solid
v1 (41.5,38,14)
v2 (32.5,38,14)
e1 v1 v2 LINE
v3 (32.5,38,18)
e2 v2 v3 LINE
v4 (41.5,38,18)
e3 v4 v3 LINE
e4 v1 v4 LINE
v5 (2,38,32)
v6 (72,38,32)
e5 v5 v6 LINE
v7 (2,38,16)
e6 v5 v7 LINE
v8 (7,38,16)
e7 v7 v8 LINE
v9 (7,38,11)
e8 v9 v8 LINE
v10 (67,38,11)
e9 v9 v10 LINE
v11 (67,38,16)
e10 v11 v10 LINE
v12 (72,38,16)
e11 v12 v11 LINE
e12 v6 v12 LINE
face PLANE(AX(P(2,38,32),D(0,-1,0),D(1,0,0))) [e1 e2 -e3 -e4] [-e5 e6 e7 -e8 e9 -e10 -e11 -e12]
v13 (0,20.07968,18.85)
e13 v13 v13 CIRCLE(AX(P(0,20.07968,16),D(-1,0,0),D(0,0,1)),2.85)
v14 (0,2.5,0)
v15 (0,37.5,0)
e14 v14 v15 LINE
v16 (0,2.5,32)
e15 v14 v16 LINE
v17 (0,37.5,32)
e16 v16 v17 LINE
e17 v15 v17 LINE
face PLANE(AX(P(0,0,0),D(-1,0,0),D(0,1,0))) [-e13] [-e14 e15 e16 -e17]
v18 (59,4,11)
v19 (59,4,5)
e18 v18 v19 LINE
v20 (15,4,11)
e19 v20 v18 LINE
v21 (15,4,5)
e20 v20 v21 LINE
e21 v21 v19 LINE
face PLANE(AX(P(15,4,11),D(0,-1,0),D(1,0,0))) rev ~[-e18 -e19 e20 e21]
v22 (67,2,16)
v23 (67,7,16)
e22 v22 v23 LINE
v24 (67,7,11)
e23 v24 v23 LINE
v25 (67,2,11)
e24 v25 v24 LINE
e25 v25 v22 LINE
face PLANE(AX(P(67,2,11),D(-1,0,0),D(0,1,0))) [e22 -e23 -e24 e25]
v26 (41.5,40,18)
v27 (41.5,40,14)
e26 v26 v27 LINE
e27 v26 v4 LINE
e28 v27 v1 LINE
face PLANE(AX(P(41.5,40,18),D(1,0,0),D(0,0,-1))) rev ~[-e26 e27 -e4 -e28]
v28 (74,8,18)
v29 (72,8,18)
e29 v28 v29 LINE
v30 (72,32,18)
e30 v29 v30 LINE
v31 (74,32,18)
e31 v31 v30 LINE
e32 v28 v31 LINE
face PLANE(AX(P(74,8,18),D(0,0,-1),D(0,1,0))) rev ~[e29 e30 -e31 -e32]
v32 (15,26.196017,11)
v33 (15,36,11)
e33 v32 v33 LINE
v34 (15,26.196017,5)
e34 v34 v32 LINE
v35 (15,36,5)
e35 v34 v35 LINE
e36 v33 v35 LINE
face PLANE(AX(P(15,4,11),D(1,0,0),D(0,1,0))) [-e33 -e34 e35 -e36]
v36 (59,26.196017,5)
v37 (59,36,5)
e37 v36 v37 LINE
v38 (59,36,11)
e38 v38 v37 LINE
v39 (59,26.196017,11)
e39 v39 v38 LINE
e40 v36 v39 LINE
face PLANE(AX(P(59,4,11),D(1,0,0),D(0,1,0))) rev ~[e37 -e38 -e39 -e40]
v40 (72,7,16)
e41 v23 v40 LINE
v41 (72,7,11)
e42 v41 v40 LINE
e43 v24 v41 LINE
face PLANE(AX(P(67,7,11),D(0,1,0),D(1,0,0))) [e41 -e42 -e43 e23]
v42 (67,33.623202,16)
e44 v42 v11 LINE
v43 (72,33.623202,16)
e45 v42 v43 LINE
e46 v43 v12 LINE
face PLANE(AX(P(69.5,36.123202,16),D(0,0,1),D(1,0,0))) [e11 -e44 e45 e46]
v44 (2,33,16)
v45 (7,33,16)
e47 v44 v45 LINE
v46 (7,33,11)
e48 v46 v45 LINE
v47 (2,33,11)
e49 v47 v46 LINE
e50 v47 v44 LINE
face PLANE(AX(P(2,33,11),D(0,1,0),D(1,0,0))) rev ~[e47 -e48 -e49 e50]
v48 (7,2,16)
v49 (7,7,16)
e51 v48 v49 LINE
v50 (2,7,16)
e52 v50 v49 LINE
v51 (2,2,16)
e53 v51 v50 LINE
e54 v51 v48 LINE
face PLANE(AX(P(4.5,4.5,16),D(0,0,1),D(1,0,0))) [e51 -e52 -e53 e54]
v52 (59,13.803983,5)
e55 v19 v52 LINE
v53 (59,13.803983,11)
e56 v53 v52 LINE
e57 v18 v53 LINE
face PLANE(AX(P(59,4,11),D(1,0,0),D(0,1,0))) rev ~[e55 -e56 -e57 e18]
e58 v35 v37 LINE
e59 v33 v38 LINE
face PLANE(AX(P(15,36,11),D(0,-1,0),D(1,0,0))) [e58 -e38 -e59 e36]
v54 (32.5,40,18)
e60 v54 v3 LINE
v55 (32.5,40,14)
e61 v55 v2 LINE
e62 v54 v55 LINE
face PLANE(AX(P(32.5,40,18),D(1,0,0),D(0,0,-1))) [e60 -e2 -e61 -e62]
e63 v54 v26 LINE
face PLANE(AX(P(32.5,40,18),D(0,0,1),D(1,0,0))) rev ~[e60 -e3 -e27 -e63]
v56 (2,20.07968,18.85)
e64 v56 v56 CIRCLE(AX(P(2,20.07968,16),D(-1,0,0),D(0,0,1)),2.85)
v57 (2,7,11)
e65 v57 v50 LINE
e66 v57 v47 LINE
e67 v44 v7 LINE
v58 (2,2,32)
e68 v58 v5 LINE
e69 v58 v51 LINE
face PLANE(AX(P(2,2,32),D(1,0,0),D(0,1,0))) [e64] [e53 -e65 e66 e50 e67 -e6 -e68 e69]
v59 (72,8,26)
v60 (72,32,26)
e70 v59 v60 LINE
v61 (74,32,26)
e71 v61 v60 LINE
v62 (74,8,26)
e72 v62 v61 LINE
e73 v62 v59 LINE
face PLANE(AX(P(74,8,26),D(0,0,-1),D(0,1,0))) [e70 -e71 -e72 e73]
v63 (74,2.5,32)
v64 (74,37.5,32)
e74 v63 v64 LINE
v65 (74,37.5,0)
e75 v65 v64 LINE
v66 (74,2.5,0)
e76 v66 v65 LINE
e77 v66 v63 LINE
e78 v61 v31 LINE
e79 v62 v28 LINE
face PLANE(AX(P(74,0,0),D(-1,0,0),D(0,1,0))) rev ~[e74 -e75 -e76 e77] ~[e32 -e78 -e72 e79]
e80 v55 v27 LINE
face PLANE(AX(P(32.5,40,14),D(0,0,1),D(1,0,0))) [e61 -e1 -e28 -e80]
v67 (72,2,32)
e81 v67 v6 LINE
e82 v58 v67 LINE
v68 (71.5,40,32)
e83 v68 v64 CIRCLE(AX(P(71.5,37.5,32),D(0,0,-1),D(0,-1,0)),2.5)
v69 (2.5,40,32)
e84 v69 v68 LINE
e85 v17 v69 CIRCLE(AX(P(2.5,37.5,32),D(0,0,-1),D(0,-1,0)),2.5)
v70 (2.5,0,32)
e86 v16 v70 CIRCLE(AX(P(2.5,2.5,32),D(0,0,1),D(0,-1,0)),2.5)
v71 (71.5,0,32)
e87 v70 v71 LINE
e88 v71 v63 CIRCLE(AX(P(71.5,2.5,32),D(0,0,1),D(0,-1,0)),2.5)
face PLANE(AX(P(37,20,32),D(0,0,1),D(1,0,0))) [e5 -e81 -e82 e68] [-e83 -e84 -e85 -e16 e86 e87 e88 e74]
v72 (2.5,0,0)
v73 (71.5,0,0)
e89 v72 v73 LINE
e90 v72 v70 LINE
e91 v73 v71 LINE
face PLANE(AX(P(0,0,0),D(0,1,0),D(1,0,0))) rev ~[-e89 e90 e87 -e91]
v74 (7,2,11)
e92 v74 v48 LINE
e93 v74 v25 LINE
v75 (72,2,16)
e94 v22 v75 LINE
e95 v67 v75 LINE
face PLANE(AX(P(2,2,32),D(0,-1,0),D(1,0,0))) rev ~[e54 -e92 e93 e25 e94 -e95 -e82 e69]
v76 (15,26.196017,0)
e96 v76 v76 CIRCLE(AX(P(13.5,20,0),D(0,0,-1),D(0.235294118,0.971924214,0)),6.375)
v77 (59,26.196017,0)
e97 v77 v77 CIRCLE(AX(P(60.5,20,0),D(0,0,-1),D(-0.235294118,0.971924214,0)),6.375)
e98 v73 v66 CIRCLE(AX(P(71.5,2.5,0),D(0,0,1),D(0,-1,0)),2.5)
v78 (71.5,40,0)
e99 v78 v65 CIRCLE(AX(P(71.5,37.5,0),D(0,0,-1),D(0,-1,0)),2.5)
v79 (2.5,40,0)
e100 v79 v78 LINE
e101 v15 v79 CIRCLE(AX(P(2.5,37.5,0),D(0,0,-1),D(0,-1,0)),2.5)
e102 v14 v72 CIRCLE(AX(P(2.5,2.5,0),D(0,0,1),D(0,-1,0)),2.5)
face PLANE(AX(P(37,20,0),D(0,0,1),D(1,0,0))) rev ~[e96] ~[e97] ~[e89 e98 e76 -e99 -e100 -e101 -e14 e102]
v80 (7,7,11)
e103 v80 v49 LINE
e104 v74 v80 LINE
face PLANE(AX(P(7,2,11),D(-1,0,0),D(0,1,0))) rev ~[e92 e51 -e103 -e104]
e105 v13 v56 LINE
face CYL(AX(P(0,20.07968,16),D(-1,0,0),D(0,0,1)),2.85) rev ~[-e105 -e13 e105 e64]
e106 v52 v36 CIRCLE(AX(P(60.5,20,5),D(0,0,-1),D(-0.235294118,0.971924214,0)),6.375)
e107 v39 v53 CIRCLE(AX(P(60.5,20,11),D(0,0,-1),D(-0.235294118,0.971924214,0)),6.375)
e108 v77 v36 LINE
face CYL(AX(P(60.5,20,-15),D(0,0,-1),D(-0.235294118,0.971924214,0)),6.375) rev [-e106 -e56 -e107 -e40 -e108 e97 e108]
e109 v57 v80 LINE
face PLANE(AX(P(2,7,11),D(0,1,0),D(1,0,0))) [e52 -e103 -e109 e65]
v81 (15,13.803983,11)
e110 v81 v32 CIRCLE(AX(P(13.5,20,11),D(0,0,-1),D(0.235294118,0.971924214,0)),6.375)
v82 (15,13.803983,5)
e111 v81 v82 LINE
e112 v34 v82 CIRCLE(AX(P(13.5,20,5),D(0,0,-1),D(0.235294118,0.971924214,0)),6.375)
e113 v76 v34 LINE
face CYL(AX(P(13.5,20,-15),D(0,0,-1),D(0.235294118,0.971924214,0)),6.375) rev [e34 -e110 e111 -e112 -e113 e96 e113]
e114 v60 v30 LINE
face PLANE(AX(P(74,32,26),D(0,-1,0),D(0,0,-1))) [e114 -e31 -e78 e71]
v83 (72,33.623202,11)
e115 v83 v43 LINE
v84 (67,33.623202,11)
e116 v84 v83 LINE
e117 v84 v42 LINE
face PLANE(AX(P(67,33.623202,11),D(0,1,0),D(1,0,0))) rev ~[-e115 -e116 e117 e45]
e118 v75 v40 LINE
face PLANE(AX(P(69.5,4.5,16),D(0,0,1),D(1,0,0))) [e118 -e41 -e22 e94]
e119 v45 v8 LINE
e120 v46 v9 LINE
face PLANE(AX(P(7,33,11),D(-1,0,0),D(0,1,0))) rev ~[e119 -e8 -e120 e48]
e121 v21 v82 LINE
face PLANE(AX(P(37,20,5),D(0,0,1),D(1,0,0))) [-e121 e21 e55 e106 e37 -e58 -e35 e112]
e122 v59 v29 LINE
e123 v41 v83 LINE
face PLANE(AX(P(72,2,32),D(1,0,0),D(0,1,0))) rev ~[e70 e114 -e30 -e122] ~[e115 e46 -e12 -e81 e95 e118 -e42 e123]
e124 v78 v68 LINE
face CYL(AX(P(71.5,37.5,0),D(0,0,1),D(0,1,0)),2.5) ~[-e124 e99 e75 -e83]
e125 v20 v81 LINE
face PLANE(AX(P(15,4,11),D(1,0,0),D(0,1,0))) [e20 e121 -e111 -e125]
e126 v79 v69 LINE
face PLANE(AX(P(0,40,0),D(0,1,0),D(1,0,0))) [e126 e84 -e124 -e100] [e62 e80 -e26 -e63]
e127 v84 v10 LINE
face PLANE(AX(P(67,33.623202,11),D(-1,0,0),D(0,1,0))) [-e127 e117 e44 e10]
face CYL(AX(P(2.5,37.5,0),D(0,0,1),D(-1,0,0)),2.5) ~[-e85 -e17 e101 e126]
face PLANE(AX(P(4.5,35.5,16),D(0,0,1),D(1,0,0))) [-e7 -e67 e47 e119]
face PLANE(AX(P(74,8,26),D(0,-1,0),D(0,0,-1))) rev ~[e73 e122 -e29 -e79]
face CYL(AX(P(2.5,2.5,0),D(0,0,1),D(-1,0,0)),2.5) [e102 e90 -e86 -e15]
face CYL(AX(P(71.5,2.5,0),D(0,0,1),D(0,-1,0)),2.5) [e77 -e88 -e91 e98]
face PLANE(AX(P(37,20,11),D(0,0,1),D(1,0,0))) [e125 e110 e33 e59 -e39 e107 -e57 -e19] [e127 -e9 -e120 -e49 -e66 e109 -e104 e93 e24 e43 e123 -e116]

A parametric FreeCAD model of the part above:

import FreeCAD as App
import Part
import Sketcher
from FreeCAD import Vector


def edges_at(feature, points):
    """Names of the edges that pass closest to the given points."""
    edges = feature.Shape.Edges
    near = lambda p: min(range(len(edges)), key=lambda i: edges[i].distToShape(Part.Vertex(*p))[0])
    return sorted({f"Edge{near(p) + 1}" for p in points})


def add_polygon(sketch, points):
    """Adds a closed chain of lines whose ends are joined by coincident constraints."""
    first, n = sketch.GeometryCount, len(points)
    for a, b in zip(points, points[1:] + points[:1]):
        sketch.addGeometry(Part.LineSegment(App.Vector(*a, 0), App.Vector(*b, 0)), False)
    for i in range(n):
        sketch.addConstraint(Sketcher.Constraint("Coincident", first + i, 2, first + (i + 1) % n, 1))

doc = App.newDocument("Part")
body = doc.addObject("PartDesign::Body", "Body")

sketch1 = body.newObject("Sketcher::SketchObject", "Sketch")
sketch1.AttachmentSupport = (doc.getObject("XY_Plane"), [""])
sketch1.MapMode = "FlatFace"
add_polygon(sketch1, [(0, 40), (0, 0), (74, 0), (74, 40)])
sketch1.addConstraint([
    Sketcher.Constraint("Vertical", 0),
    Sketcher.Constraint("Horizontal", 1),
    Sketcher.Constraint("Vertical", 2),
    Sketcher.Constraint("Horizontal", 3),
    Sketcher.Constraint("Coincident", 0, 2, -1, 1),
    Sketcher.Constraint("DistanceX", 1, 1, 1, 2, 74.0),
    Sketcher.Constraint("DistanceY", 0, 2, 0, 1, 40.0),
])
pad1 = body.newObject("PartDesign::Pad", "Pad")
pad1.Profile = sketch1
pad1.Length = 32

sketch2 = body.newObject("Sketcher::SketchObject", "Sketch001")
sketch2.AttachmentSupport = (doc.getObject("XY_Plane"), [""])
sketch2.MapMode = "FlatFace"
sketch2.AttachmentOffset = App.Placement(Vector(0, 0, 32), App.Rotation())
add_polygon(sketch2, [(2, 38), (2, 2), (72, 2), (72, 38)])
sketch2.addConstraint([
    Sketcher.Constraint("Vertical", 0),
    Sketcher.Constraint("Horizontal", 1),
    Sketcher.Constraint("Vertical", 2),
    Sketcher.Constraint("Horizontal", 3),
    Sketcher.Constraint("DistanceX", 1, 1, 1, 2, 70.0),
    Sketcher.Constraint("DistanceY", 0, 2, 0, 1, 36.0),
    Sketcher.Constraint("DistanceX", -1, 1, 0, 2, 2.0),
    Sketcher.Constraint("DistanceY", -1, 1, 0, 2, 2.0),
])
pocket1 = body.newObject("PartDesign::Pocket", "Pocket")
pocket1.Profile = sketch2
pocket1.Length = 21

sketch3 = body.newObject("Sketcher::SketchObject", "Sketch002")
sketch3.AttachmentSupport = (doc.getObject("XY_Plane"), [""])
sketch3.MapMode = "FlatFace"
sketch3.AttachmentOffset = App.Placement(Vector(0, 0, 11), App.Rotation())
add_polygon(sketch3, [(15, 36), (15, 4), (59, 4), (59, 36)])
sketch3.addConstraint([
    Sketcher.Constraint("Vertical", 0),
    Sketcher.Constraint("Horizontal", 1),
    Sketcher.Constraint("Vertical", 2),
    Sketcher.Constraint("Horizontal", 3),
    Sketcher.Constraint("DistanceX", 1, 1, 1, 2, 44.0),
    Sketcher.Constraint("DistanceY", 0, 2, 0, 1, 32.0),
    Sketcher.Constraint("DistanceX", -1, 1, 0, 2, 15.0),
    Sketcher.Constraint("DistanceY", -1, 1, 0, 2, 4.0),
])
pocket2 = body.newObject("PartDesign::Pocket", "Pocket001")
pocket2.Profile = sketch3
pocket2.Length = 6

sketch4 = body.newObject("Sketcher::SketchObject", "Sketch003")
sketch4.AttachmentSupport = (doc.getObject("XY_Plane"), [""])
sketch4.MapMode = "FlatFace"
sketch4.AttachmentOffset = App.Placement(Vector(0, 0, 5), App.Rotation())
sketch4.addGeometry([
    Part.Circle(Vector(14, 20, 0), Vector(0, 0, 1), 6),
    Part.Circle(Vector(60, 20, 0), Vector(0, 0, 1), 6),
], False)
sketch4.addConstraint([
    Sketcher.Constraint("Equal", 0, 1),
    Sketcher.Constraint("Horizontal", 0, 3, 1, 3),
    Sketcher.Constraint("Diameter", 0, 12.75),
    Sketcher.Constraint("DistanceY", -1, 1, 0, 3, 20.0),
    Sketcher.Constraint("DistanceX", 0, 3, 1, 3, 47.0),
    Sketcher.Constraint("DistanceX", -1, 1, 0, 3, 13.5),
])
pocket3 = body.newObject("PartDesign::Pocket", "Pocket002")
pocket3.Profile = sketch4
pocket3.Type = "ThroughAll"
pocket3.Midplane = True

sketch5 = body.newObject("Sketcher::SketchObject", "Sketch004")
sketch5.AttachmentSupport = (doc.getObject("XY_Plane"), [""])
sketch5.MapMode = "FlatFace"
sketch5.AttachmentOffset = App.Placement(Vector(0, 0, 11), App.Rotation())
add_polygon(sketch5, [(2, 38), (2, 33), (7, 33), (7, 38)])
add_polygon(sketch5, [(67, 39), (67, 34), (72, 34), (72, 39)])
add_polygon(sketch5, [(67, 7), (67, 2), (72, 2), (72, 7)])
add_polygon(sketch5, [(2, 7), (2, 2), (7, 2), (7, 7)])
sketch5.addConstraint([
    Sketcher.Constraint("Vertical", 0),
    Sketcher.Constraint("Horizontal", 1),
    Sketcher.Constraint("Vertical", 2),
    Sketcher.Constraint("Horizontal", 3),
    Sketcher.Constraint("Vertical", 4),
    Sketcher.Constraint("Horizontal", 5),
    Sketcher.Constraint("Vertical", 6),
    Sketcher.Constraint("Horizontal", 7),
    Sketcher.Constraint("Vertical", 8),
    Sketcher.Constraint("Horizontal", 9),
    Sketcher.Constraint("Vertical", 10),
    Sketcher.Constraint("Horizontal", 11),
    Sketcher.Constraint("Vertical", 12),
    Sketcher.Constraint("Horizontal", 13),
    Sketcher.Constraint("Vertical", 14),
    Sketcher.Constraint("Horizontal", 15),
    Sketcher.Constraint("Horizontal", 9, 2, 12, 2),
    Sketcher.Constraint("Horizontal", 11, 2, 14, 2),
    Sketcher.Constraint("Vertical", 7, 2, 8, 2),
    Sketcher.Constraint("Vertical", 6, 2, 9, 2),
    Sketcher.Constraint("Vertical", 3, 2, 12, 2),
    Sketcher.Constraint("Vertical", 2, 2, 13, 2),
    Sketcher.Constraint("Equal", 3, 5),
    Sketcher.Constraint("Equal", 15, 0),
    Sketcher.Constraint("Equal", 2, 4),
    Sketcher.Constraint("Equal", 6, 8),
    Sketcher.Constraint("DistanceX", 1, 1, 1, 2, 5.0),
    Sketcher.Constraint("DistanceX", -1, 1, 0, 2, 2.0),
    Sketcher.Constraint("DistanceY", -1, 1, 0, 2, 33.0),
    Sketcher.Constraint("DistanceX", -1, 1, 4, 2, 67.0),
    Sketcher.Constraint("DistanceY", -1, 1, 8, 2, 2.0),
    Sketcher.Constraint("DistanceY", -1, 1, 4, 2, 33.623202),
])
pad2 = body.newObject("PartDesign::Pad", "Pad001")
pad2.Profile = sketch5
pad2.Length = 5

sketch6 = body.newObject("Sketcher::SketchObject", "Sketch005")
sketch6.AttachmentSupport = (doc.getObject("YZ_Plane"), [""])
sketch6.MapMode = "FlatFace"
sketch6.AttachmentOffset = App.Placement(Vector(0, 0, 74), App.Rotation())
add_polygon(sketch6, [(32, 26), (8, 26), (8, 18), (32, 18)])
sketch6.addConstraint([
    Sketcher.Constraint("Horizontal", 0),
    Sketcher.Constraint("Vertical", 1),
    Sketcher.Constraint("Horizontal", 2),
    Sketcher.Constraint("Vertical", 3),
    Sketcher.Constraint("DistanceX", 0, 2, 0, 1, 24.0),
    Sketcher.Constraint("DistanceY", 1, 2, 1, 1, 8.0),
    Sketcher.Constraint("DistanceX", -1, 1, 0, 2, 8.0),
    Sketcher.Constraint("DistanceY", -1, 1, 0, 2, 26.0),
])
pocket4 = body.newObject("PartDesign::Pocket", "Pocket003")
pocket4.Profile = sketch6
pocket4.Length = 5

sketch7 = body.newObject("Sketcher::SketchObject", "Sketch006")
sketch7.AttachmentSupport = (doc.getObject("YZ_Plane"), [""])
sketch7.MapMode = "FlatFace"
sketch7.addGeometry(Part.Circle(Vector(20.1, 16, 0), Vector(0, 0, 1), 2.9), False)
sketch7.addConstraint([
    Sketcher.Constraint("Diameter", 0, 5.7),
    Sketcher.Constraint("DistanceY", -1, 1, 0, 3, 16.0),
    Sketcher.Constraint("DistanceX", -1, 1, 0, 3, 20.07968),
])
pocket5 = body.newObject("PartDesign::Pocket", "Pocket004")
pocket5.Profile = sketch7
pocket5.Length = 5
pocket5.Reversed = True

sketch8 = body.newObject("Sketcher::SketchObject", "Sketch007")
sketch8.AttachmentSupport = (doc.getObject("XZ_Plane"), [""])
sketch8.MapMode = "FlatFace"
sketch8.AttachmentOffset = App.Placement(Vector(0, 0, -40), App.Rotation())
add_polygon(sketch8, [(32.5, 14), (32.5, 18), (41.5, 18), (41.5, 14)])
sketch8.addConstraint([
    Sketcher.Constraint("Vertical", 0),
    Sketcher.Constraint("Horizontal", 1),
    Sketcher.Constraint("Vertical", 2),
    Sketcher.Constraint("Horizontal", 3),
    Sketcher.Constraint("DistanceX", 1, 1, 1, 2, 9.0),
    Sketcher.Constraint("DistanceY", 0, 1, 0, 2, 4.0),
    Sketcher.Constraint("DistanceY", -1, 1, 0, 2, 18.0),
    Sketcher.Constraint("DistanceX", -1, 1, 0, 2, 32.5),
])
pocket6 = body.newObject("PartDesign::Pocket", "Pocket005")
pocket6.Profile = sketch8
pocket6.Length = 5
pocket6.Reversed = True
doc.recompute()

fillet = body.newObject("PartDesign::Fillet", "Fillet")
fillet.Base = (pocket6, edges_at(pocket6, [
    (0, 40, 16),
    (74, 40, 16),
    (74, 0, 16),
    (0, 0, 16),
]))
fillet.Radius = 2.5

doc.recompute()
